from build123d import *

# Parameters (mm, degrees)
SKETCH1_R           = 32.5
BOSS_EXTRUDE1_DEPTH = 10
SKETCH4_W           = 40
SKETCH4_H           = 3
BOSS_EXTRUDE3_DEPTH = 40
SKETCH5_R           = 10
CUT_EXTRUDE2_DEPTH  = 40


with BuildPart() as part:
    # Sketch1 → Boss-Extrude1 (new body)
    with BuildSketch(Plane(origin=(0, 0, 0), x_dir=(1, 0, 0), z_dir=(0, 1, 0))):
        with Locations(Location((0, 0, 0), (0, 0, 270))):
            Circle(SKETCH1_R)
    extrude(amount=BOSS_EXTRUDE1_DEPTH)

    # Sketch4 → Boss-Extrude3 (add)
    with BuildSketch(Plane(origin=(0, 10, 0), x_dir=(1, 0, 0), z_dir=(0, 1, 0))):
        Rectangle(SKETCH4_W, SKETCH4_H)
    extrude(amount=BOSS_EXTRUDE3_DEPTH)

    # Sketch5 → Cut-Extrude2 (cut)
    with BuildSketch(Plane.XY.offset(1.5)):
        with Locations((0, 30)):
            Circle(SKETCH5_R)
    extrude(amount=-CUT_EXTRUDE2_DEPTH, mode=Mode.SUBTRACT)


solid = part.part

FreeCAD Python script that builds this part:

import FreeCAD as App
import Part
import Sketcher

V = App.Vector
Q = App.Units.Quantity

doc = App.newDocument("Part")
params = doc.addObject("Spreadsheet::Sheet", "Params")
for row, (alias, value) in enumerate([
    ("sketch1_diameter", "65 mm"),
    ("pad1_length", "10 mm"),
    ("sketch2_width", "40 mm"),
    ("sketch2_height", "3 mm"),
    ("pad2_length", "40 mm"),
    ("sketch3_diameter", "20 mm"),
    ("pocket1_length", "40 mm"),
], start=1):
    params.set(f"A{row}", alias)
    params.set(f"B{row}", "=" + value)
    params.setAlias(f"B{row}", alias)

body = doc.addObject("PartDesign::Body", "Body")

sketch1 = body.newObject("Sketcher::SketchObject", "Sketch")
sketch1.AttachmentSupport = (doc.getObject("XZ_Plane"), [""])
sketch1.MapMode = "FlatFace"
sketch1.addGeometry(Part.Circle(V(0, 0, 0), V(0, 0, 1), 32), False)
sketch1.addConstraint([
    Sketcher.Constraint("Coincident", 0, 3, -1, 1),
    Sketcher.Constraint("Diameter", 0, Q("65 mm")),
])
sketch1.setExpression("Constraints[1]", "Params.sketch1_diameter")
pad1 = body.newObject("PartDesign::Pad", "Pad")
pad1.Profile = sketch1
pad1.setExpression("Length", "Params.pad1_length")
pad1.Reversed = True

sketch2 = body.newObject("Sketcher::SketchObject", "Sketch001")
sketch2.AttachmentSupport = (doc.getObject("XZ_Plane"), [""])
sketch2.MapMode = "FlatFace"
sketch2.AttachmentOffset = App.Placement(V(0, 0, -10), App.Rotation())
sketch2.addGeometry([
    Part.LineSegment(V(-20, -1.5, 0), V(-20, 1.5, 0)),
    Part.LineSegment(V(-20, 1.5, 0), V(20, 1.5, 0)),
    Part.LineSegment(V(20, 1.5, 0), V(20, -1.5, 0)),
    Part.LineSegment(V(20, -1.5, 0), V(-20, -1.5, 0)),
], False)
sketch2.addConstraint([
    Sketcher.Constraint("Coincident", 0, 2, 1, 1),
    Sketcher.Constraint("Coincident", 1, 2, 2, 1),
    Sketcher.Constraint("Coincident", 2, 2, 3, 1),
    Sketcher.Constraint("Coincident", 3, 2, 0, 1),
    Sketcher.Constraint("Vertical", 0),
    Sketcher.Constraint("Horizontal", 1),
    Sketcher.Constraint("Vertical", 2),
    Sketcher.Constraint("Horizontal", 3),
    Sketcher.Constraint("Symmetric", 0, 2, 2, 2, -1, 1),
    Sketcher.Constraint("DistanceX", 1, 1, 1, 2, Q("40 mm")),
    Sketcher.Constraint("DistanceY", 0, 1, 0, 2, Q("3 mm")),
])
sketch2.setExpression("Constraints[9]", "Params.sketch2_width")
sketch2.setExpression("Constraints[10]", "Params.sketch2_height")
pad2 = body.newObject("PartDesign::Pad", "Pad001")
pad2.Profile = sketch2
pad2.setExpression("Length", "Params.pad2_length")
pad2.Reversed = True

sketch3 = body.newObject("Sketcher::SketchObject", "Sketch002")
sketch3.AttachmentSupport = (doc.getObject("XY_Plane"), [""])
sketch3.MapMode = "FlatFace"
sketch3.AttachmentOffset = App.Placement(V(0, 0, 1.5), App.Rotation())
sketch3.addGeometry(Part.Circle(V(0, 30, 0), V(0, 0, 1), 10), False)
sketch3.addConstraint([
    Sketcher.Constraint("PointOnObject", 0, 3, -2),
    Sketcher.Constraint("Diameter", 0, Q("20 mm")),
    Sketcher.Constraint("DistanceY", -1, 1, 0, 3, Q("30 mm")),
])
sketch3.setExpression("Constraints[1]", "Params.sketch3_diameter")
pocket1 = body.newObject("PartDesign::Pocket", "Pocket")
pocket1.Profile = sketch3
pocket1.setExpression("Length", "Params.pocket1_length")

doc.recompute()
